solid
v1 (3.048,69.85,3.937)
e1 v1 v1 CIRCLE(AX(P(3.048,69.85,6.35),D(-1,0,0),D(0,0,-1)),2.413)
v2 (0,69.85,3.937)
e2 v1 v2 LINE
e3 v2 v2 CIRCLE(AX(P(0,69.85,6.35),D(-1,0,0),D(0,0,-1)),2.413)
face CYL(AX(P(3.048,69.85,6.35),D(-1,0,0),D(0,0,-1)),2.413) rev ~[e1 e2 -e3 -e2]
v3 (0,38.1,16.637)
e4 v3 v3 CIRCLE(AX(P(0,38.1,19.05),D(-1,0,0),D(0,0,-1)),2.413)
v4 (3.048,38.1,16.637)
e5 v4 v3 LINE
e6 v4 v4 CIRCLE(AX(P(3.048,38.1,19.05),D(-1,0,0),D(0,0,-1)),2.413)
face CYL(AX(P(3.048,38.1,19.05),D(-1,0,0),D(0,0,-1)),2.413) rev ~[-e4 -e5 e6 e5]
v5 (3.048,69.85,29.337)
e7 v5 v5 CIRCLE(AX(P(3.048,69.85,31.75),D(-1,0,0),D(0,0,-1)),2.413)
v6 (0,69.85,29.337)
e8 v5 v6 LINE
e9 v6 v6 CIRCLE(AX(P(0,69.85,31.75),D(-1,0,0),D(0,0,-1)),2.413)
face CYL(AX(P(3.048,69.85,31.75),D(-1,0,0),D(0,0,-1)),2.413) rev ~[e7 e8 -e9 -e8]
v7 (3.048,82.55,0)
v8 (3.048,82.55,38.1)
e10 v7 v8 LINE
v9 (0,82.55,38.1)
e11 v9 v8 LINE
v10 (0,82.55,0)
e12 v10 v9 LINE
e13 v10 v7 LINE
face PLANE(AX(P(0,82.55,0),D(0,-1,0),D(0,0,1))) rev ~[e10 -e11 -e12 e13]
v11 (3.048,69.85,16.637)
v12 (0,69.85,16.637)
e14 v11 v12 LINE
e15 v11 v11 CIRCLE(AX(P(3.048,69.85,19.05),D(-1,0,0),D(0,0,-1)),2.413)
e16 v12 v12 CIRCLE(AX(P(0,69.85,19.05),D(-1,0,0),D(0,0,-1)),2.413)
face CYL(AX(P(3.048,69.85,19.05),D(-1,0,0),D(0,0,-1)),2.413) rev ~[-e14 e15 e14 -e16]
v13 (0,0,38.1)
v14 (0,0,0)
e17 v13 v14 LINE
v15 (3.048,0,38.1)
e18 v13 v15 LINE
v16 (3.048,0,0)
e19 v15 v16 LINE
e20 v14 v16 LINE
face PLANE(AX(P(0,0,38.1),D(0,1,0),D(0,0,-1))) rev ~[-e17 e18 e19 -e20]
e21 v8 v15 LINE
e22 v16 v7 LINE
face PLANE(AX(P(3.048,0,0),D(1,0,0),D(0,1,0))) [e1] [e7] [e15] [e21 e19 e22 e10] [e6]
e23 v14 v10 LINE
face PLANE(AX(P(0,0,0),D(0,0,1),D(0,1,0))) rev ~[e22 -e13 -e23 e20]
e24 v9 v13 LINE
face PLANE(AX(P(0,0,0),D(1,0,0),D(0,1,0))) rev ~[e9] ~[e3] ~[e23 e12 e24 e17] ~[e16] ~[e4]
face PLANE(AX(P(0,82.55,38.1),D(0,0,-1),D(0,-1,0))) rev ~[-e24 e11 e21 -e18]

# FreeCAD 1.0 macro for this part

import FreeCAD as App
import Part
import Sketcher
from FreeCAD import Vector
Q = App.Units.Quantity

doc = App.newDocument("Part")
body = doc.addObject("PartDesign::Body", "Body")

# Sketch on YZ plane
sketch1 = doc.addObject("Sketcher::SketchObject", "Sketch")
body.addObject(sketch1)
sketch1.AttachmentSupport = (doc.YZ_Plane, [""])
sketch1.MapMode = "FlatFace"
sketch1.addGeometry(Part.LineSegment(Vector(0, 38.1, 0), Vector(0, 0, 0)), False)
sketch1.addGeometry(Part.LineSegment(Vector(0, 0, 0), Vector(82.55, 0, 0)), False)
sketch1.addGeometry(Part.LineSegment(Vector(82.55, 0, 0), Vector(82.55, 38.1, 0)), False)
sketch1.addGeometry(Part.LineSegment(Vector(82.55, 38.1, 0), Vector(0, 38.1, 0)), False)
sketch1.addConstraint(Sketcher.Constraint("Coincident", 0, 2, 1, 1))
sketch1.addConstraint(Sketcher.Constraint("Coincident", 1, 2, 2, 1))
sketch1.addConstraint(Sketcher.Constraint("Coincident", 2, 2, 3, 1))
sketch1.addConstraint(Sketcher.Constraint("Coincident", 3, 2, 0, 1))
sketch1.addConstraint(Sketcher.Constraint("Vertical", 0))
sketch1.addConstraint(Sketcher.Constraint("Horizontal", 1))
sketch1.addConstraint(Sketcher.Constraint("Vertical", 2))
sketch1.addConstraint(Sketcher.Constraint("Horizontal", 3))
sketch1.addConstraint(Sketcher.Constraint("Coincident", 0, 2, -1, 1))
sketch1.addConstraint(Sketcher.Constraint("DistanceY", 0, 2, 0, 1, Q("1.5 in")))
sketch1.addConstraint(Sketcher.Constraint("DistanceX", 1, 1, 1, 2, Q("3.25 in")))
pad1 = doc.addObject("PartDesign::Pad", "Pad")
body.addObject(pad1)
pad1.Profile = sketch1
pad1.Length = Q("0.12 in")

# Sketch on YZ plane
sketch2 = doc.addObject("Sketcher::SketchObject", "Sketch001")
body.addObject(sketch2)
sketch2.AttachmentSupport = (doc.YZ_Plane, [""])
sketch2.MapMode = "FlatFace"
sketch2.AttachmentOffset = App.Placement(Vector(0, 0, 0.12 * 25.4), App.Rotation())
sketch2.addGeometry(Part.Circle(Vector(38.1, 19.05, 0), Vector(0, 0, 1), 2.413), False)
sketch2.addConstraint(Sketcher.Constraint("Diameter", 0, Q("0.19 in")))
sketch2.addConstraint(Sketcher.Constraint("DistanceX", -1, 1, 0, 3, Q("1.5 in")))
sketch2.addConstraint(Sketcher.Constraint("DistanceY", -1, 1, 0, 3, Q("0.75 in")))
doc.recompute()
hole = doc.addObject("PartDesign::Hole", "Hole")
body.addObject(hole)
hole.Profile = sketch2
hole.ThreadType = "None"
hole.Diameter = Q("0.19 in")
hole.DepthType = "Dimension"
hole.Depth = Q("0.38 in")
hole.DrillPoint = "Angled"
hole.DrillPointAngle = 118

# Sketch on YZ plane
sketch3 = doc.addObject("Sketcher::SketchObject", "Sketch002")
body.addObject(sketch3)
sketch3.AttachmentSupport = (doc.YZ_Plane, [""])
sketch3.MapMode = "FlatFace"
sketch3.AttachmentOffset = App.Placement(Vector(0, 0, 0.12 * 25.4), App.Rotation())
sketch3.addGeometry(Part.Circle(Vector(69.85, 6.35, 0), Vector(0, 0, 1), 2.413), False)
sketch3.addConstraint(Sketcher.Constraint("Diameter", 0, Q("0.19 in")))
sketch3.addConstraint(Sketcher.Constraint("DistanceX", -1, 1, 0, 3, Q("2.75 in")))
sketch3.addConstraint(Sketcher.Constraint("DistanceY", -1, 1, 0, 3, Q("0.25 in")))
doc.recompute()
hole2 = doc.addObject("PartDesign::Hole", "Hole001")
body.addObject(hole2)
hole2.Profile = sketch3
hole2.ThreadType = "None"
hole2.Diameter = Q("0.19 in")
hole2.DepthType = "Dimension"
hole2.Depth = Q("0.12 in")
hole2.DrillPoint = "Angled"
hole2.DrillPointAngle = 118

# Sketch on YZ plane
sketch4 = doc.addObject("Sketcher::SketchObject", "Sketch003")
body.addObject(sketch4)
sketch4.AttachmentSupport = (doc.YZ_Plane, [""])
sketch4.MapMode = "FlatFace"
sketch4.AttachmentOffset = App.Placement(Vector(0, 0, 0.12 * 25.4), App.Rotation())
sketch4.addGeometry(Part.Circle(Vector(69.85, 19.05, 0), Vector(0, 0, 1), 2.413), False)
sketch4.addConstraint(Sketcher.Constraint("Diameter", 0, Q("0.19 in")))
sketch4.addConstraint(Sketcher.Constraint("DistanceX", -1, 1, 0, 3, Q("2.75 in")))
sketch4.addConstraint(Sketcher.Constraint("DistanceY", -1, 1, 0, 3, Q("0.75 in")))
doc.recompute()
hole3 = doc.addObject("PartDesign::Hole", "Hole002")
body.addObject(hole3)
hole3.Profile = sketch4
hole3.ThreadType = "None"
hole3.Diameter = Q("0.19 in")
hole3.DepthType = "Dimension"
hole3.Depth = Q("0.12 in")
hole3.DrillPoint = "Angled"
hole3.DrillPointAngle = 118

# Sketch on YZ plane
sketch5 = doc.addObject("Sketcher::SketchObject", "Sketch004")
body.addObject(sketch5)
sketch5.AttachmentSupport = (doc.YZ_Plane, [""])
sketch5.MapMode = "FlatFace"
sketch5.AttachmentOffset = App.Placement(Vector(0, 0, 0.12 * 25.4), App.Rotation())
sketch5.addGeometry(Part.Circle(Vector(69.85, 31.75, 0), Vector(0, 0, 1), 2.413), False)
sketch5.addConstraint(Sketcher.Constraint("Diameter", 0, Q("0.19 in")))
sketch5.addConstraint(Sketcher.Constraint("DistanceX", -1, 1, 0, 3, Q("2.75 in")))
sketch5.addConstraint(Sketcher.Constraint("DistanceY", -1, 1, 0, 3, Q("1.25 in")))
doc.recompute()
hole4 = doc.addObject("PartDesign::Hole", "Hole003")
body.addObject(hole4)
hole4.Profile = sketch5
hole4.ThreadType = "None"
hole4.Diameter = Q("0.19 in")
hole4.DepthType = "Dimension"
hole4.Depth = Q("0.12 in")
hole4.DrillPoint = "Angled"
hole4.DrillPointAngle = 118

doc.recompute()
